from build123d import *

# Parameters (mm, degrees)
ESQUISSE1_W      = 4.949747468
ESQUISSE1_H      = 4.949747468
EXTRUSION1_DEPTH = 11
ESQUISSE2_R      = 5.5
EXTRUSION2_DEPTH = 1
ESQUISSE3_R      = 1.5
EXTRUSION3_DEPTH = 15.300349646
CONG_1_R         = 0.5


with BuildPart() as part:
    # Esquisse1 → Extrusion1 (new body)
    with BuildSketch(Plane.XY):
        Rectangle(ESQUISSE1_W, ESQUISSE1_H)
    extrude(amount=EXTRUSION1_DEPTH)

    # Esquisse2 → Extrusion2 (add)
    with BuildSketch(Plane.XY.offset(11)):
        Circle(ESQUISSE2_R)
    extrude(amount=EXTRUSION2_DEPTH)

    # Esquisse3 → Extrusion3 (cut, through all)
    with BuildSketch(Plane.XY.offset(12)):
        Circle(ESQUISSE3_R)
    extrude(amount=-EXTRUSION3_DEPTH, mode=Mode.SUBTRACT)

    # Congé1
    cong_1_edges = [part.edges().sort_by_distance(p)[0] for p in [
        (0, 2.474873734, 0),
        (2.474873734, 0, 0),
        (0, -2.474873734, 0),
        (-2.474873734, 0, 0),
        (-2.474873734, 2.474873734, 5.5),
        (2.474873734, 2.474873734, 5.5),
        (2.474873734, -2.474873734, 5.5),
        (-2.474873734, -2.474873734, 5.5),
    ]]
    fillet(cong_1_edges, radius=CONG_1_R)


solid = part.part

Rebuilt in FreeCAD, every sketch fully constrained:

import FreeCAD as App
import Part
import Sketcher
from FreeCAD import Vector
Q = App.Units.Quantity


def edges_at(feature, points):
    """Names of the edges that pass closest to the given points."""
    edges = feature.Shape.Edges
    near = lambda p: min(range(len(edges)), key=lambda i: edges[i].distToShape(Part.Vertex(*p))[0])
    return sorted({f"Edge{near(p) + 1}" for p in points})


def add_polygon(sketch, points):
    """Adds a closed chain of lines whose ends are joined by coincident constraints."""
    first, n = sketch.GeometryCount, len(points)
    for a, b in zip(points, points[1:] + points[:1]):
        sketch.addGeometry(Part.LineSegment(App.Vector(*a, 0), App.Vector(*b, 0)), False)
    for i in range(n):
        sketch.addConstraint(Sketcher.Constraint("Coincident", first + i, 2, first + (i + 1) % n, 1))

doc = App.newDocument("Part")
params = doc.addObject("Spreadsheet::Sheet", "Params")
for row, (alias, value) in enumerate([
    ("pad1_length", "11 mm"),
    ("sketch2_diameter", "11 mm"),
    ("pad2_length", "1 mm"),
    ("sketch3_diameter", "3 mm"),
    ("fillet_radius", "0.5 mm"),
], start=1):
    params.set(f"A{row}", alias)
    params.set(f"B{row}", "=" + value)
    params.setAlias(f"B{row}", alias)

body = doc.addObject("PartDesign::Body", "Body")

sketch1 = doc.addObject("Sketcher::SketchObject", "Sketch")
body.addObject(sketch1)
sketch1.AttachmentSupport = (doc.XY_Plane, [""])
sketch1.MapMode = "FlatFace"
add_polygon(sketch1, [(-2.5, 2.5), (-2.5, -2.5), (2.5, -2.5), (2.5, 2.5)])
sketch1.addConstraint([
    Sketcher.Constraint("Vertical", 0),
    Sketcher.Constraint("Horizontal", 1),
    Sketcher.Constraint("Vertical", 2),
    Sketcher.Constraint("Horizontal", 3),
    Sketcher.Constraint("Symmetric", 0, 2, 2, 2, -1, 1),
    Sketcher.Constraint("Equal", 3, 0),
    Sketcher.Constraint("DistanceX", 1, 1, 1, 2, Q("4.949747 mm")),
])
pad1 = doc.addObject("PartDesign::Pad", "Pad")
body.addObject(pad1)
pad1.Profile = sketch1
pad1.setExpression("Length", "Params.pad1_length")

sketch2 = doc.addObject("Sketcher::SketchObject", "Sketch001")
body.addObject(sketch2)
sketch2.AttachmentSupport = (doc.XY_Plane, [""])
sketch2.MapMode = "FlatFace"
sketch2.AttachmentOffset = App.Placement(Vector(0, 0, 11), App.Rotation())
sketch2.addGeometry(Part.Circle(Vector(0, 0, 0), Vector(0, 0, 1), 6), False)
sketch2.addConstraint([
    Sketcher.Constraint("Coincident", 0, 3, -1, 1),
    Sketcher.Constraint("Diameter", 0, Q("11 mm")),
])
sketch2.setExpression("Constraints[1]", "Params.sketch2_diameter")
pad2 = doc.addObject("PartDesign::Pad", "Pad001")
body.addObject(pad2)
pad2.Profile = sketch2
pad2.setExpression("Length", "Params.pad2_length")

sketch3 = doc.addObject("Sketcher::SketchObject", "Sketch002")
body.addObject(sketch3)
sketch3.AttachmentSupport = (doc.XY_Plane, [""])
sketch3.MapMode = "FlatFace"
sketch3.AttachmentOffset = App.Placement(Vector(0, 0, 12), App.Rotation())
sketch3.addGeometry(Part.Circle(Vector(0, 0, 0), Vector(0, 0, 1), 1.5), False)
sketch3.addConstraint([
    Sketcher.Constraint("Coincident", 0, 3, -1, 1),
    Sketcher.Constraint("Diameter", 0, Q("3 mm")),
])
sketch3.setExpression("Constraints[1]", "Params.sketch3_diameter")
pocket1 = doc.addObject("PartDesign::Pocket", "Pocket")
body.addObject(pocket1)
pocket1.Profile = sketch3
pocket1.Type = "ThroughAll"
doc.recompute()

fillet = doc.addObject("PartDesign::Fillet", "Fillet")
body.addObject(fillet)
fillet.Base = (pocket1, edges_at(pocket1, [
    (0, 2.475, 0),
    (2.475, 0, 0),
    (0, -2.475, 0),
    (-2.475, 0, 0),
    (-2.475, 2.475, 5.5),
    (2.475, 2.475, 5.5),
    (2.475, -2.475, 5.5),
    (-2.475, -2.475, 5.5),
]))
fillet.setExpression("Radius", "Params.fillet_radius")

doc.recompute()
